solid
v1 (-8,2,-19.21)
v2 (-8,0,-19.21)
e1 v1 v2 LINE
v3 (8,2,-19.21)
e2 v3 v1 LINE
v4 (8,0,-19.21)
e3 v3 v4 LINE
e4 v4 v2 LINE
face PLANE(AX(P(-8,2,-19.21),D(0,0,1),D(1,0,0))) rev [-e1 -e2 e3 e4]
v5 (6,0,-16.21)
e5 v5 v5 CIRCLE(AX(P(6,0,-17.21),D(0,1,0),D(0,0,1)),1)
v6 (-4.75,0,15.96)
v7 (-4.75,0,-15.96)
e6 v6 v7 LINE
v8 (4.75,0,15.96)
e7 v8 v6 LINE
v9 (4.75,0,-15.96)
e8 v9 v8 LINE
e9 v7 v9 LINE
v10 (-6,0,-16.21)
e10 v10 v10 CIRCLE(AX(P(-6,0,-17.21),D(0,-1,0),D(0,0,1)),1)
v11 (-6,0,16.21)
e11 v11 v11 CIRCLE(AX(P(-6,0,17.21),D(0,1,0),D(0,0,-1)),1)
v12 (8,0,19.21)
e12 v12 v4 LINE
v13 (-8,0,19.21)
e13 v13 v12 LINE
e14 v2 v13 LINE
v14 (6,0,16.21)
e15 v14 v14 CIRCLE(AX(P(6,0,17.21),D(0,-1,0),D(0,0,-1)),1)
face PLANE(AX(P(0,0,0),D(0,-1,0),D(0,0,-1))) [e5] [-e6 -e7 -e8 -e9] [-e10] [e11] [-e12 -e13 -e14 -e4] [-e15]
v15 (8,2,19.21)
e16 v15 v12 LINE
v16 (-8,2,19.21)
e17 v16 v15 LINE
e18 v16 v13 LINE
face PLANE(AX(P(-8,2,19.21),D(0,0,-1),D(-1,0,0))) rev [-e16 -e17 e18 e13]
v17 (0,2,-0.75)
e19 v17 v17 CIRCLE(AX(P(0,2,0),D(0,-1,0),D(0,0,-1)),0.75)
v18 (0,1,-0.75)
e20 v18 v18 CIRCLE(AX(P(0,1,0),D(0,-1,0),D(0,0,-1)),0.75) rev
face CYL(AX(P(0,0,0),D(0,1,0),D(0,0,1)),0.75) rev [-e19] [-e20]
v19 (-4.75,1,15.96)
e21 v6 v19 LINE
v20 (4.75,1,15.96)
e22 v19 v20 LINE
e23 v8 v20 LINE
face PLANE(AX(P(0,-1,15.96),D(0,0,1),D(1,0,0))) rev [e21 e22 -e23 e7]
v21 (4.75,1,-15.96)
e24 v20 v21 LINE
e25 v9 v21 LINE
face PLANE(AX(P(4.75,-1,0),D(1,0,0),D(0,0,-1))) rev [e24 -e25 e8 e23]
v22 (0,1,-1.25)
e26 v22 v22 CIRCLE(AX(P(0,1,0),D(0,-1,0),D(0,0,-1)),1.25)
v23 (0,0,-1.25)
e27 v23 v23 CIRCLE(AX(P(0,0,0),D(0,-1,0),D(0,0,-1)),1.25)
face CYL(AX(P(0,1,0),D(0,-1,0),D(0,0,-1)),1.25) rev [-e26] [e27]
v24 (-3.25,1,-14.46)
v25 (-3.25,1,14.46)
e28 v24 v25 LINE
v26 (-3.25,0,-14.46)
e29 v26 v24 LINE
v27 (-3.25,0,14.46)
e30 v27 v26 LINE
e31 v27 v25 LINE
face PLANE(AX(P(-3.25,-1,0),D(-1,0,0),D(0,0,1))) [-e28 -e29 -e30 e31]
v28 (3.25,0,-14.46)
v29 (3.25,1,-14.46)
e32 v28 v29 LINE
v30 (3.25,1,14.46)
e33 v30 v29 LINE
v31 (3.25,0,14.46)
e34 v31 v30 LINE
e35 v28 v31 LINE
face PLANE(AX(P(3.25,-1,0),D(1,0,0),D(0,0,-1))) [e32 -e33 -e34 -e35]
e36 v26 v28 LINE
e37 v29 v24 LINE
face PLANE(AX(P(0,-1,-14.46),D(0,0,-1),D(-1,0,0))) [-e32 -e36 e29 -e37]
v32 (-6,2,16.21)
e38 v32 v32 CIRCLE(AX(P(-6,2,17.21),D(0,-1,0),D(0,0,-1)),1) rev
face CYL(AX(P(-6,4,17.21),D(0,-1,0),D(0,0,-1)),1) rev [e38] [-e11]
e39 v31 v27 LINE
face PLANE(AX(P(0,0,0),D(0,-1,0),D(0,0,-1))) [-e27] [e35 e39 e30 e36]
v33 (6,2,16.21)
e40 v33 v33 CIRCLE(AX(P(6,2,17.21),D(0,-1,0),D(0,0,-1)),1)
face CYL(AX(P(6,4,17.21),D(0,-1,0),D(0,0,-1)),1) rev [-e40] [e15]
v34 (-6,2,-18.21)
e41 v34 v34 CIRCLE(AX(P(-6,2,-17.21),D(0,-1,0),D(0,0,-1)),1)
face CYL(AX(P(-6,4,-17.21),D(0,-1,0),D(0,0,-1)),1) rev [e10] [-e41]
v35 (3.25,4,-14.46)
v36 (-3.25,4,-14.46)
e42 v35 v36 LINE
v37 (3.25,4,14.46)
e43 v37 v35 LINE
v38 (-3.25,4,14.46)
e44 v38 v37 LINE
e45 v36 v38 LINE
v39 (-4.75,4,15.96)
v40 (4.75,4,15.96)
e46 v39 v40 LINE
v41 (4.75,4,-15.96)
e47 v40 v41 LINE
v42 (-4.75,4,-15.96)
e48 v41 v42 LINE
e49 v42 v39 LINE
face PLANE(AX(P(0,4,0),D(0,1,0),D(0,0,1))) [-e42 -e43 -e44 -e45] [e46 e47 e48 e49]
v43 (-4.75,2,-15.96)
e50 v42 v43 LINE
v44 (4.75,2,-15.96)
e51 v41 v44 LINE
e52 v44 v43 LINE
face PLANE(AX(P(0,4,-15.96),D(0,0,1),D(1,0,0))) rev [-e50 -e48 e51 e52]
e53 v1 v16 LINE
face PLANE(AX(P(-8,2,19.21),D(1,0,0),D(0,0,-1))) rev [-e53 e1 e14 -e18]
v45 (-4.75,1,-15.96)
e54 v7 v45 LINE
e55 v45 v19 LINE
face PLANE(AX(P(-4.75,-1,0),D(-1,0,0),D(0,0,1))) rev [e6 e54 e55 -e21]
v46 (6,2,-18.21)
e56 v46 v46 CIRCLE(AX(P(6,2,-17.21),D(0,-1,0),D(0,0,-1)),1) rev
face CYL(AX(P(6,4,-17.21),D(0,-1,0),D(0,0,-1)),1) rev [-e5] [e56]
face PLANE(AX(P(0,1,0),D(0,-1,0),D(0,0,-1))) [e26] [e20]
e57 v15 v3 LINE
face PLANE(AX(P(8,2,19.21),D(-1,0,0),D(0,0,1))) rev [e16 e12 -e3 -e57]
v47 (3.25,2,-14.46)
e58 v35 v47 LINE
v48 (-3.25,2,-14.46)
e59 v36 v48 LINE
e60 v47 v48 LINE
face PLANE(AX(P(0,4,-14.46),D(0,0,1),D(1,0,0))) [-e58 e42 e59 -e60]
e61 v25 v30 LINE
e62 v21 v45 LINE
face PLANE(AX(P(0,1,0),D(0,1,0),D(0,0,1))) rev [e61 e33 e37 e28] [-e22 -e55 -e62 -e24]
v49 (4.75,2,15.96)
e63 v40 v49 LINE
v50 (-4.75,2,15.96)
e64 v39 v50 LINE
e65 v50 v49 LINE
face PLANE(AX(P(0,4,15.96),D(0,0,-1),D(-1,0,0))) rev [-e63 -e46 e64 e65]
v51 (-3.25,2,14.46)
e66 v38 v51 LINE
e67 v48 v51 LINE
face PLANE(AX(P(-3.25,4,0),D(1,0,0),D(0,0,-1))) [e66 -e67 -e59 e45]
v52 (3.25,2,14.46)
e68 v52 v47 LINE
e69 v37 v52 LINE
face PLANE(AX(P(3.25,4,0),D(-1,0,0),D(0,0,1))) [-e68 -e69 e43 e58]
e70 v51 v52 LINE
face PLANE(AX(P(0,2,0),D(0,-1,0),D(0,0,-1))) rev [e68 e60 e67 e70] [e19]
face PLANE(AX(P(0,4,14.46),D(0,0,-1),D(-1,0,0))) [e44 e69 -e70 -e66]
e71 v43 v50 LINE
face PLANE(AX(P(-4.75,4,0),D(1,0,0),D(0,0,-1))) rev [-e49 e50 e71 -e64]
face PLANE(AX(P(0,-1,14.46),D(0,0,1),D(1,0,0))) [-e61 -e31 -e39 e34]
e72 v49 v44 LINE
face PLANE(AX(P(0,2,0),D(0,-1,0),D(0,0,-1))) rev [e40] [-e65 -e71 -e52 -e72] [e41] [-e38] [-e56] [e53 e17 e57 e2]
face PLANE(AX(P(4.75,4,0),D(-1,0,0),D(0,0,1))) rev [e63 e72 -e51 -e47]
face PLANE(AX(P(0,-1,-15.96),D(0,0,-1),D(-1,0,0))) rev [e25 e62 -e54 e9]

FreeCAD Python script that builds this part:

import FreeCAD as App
import Part
import Sketcher
from FreeCAD import Vector

doc = App.newDocument("Part")
params = doc.addObject("Spreadsheet::Sheet", "Params")
for row, (alias, value) in enumerate([
    ("sketch1_width", "16 mm"),
    ("sketch1_height", "38.42 mm"),
    ("pad1_length", "2 mm"),
    ("sketch2_width", "9.5 mm"),
    ("sketch2_width2", "6.5 mm"),
    ("sketch2_height", "31.92 mm"),
    ("sketch2_height2", "28.92 mm"),
    ("pad2_length", "2 mm"),
    ("sketch3_diameter", "2 mm"),
    ("sketch4_diameter", "2 mm"),
    ("sketch5_width", "9.5 mm"),
    ("sketch5_width2", "6.5 mm"),
    ("sketch5_height", "31.92 mm"),
    ("sketch5_height2", "28.92 mm"),
    ("pocket3_length", "2 mm"),
    ("sketch6_diameter", "1.5 mm"),
    ("sketch7_diameter", "2.5 mm"),
    ("pocket5_length", "1 mm"),
], start=1):
    params.set(f"A{row}", alias)
    params.set(f"B{row}", "=" + value)
    params.setAlias(f"B{row}", alias)

body = doc.addObject("PartDesign::Body", "Body")

sketch1 = body.newObject("Sketcher::SketchObject", "Sketch")
sketch1.AttachmentSupport = (doc.getObject("XZ_Plane"), [""])
sketch1.MapMode = "FlatFace"
sketch1.addGeometry([
    Part.LineSegment(Vector(-8, -19, 0), Vector(-8, 19, 0)),
    Part.LineSegment(Vector(-8, 19, 0), Vector(8, 19, 0)),
    Part.LineSegment(Vector(8, 19, 0), Vector(8, -19, 0)),
    Part.LineSegment(Vector(8, -19, 0), Vector(-8, -19, 0)),
], False)
sketch1.addConstraint([
    Sketcher.Constraint("Coincident", 0, 2, 1, 1),
    Sketcher.Constraint("Coincident", 1, 2, 2, 1),
    Sketcher.Constraint("Coincident", 2, 2, 3, 1),
    Sketcher.Constraint("Coincident", 3, 2, 0, 1),
    Sketcher.Constraint("Vertical", 0),
    Sketcher.Constraint("Horizontal", 1),
    Sketcher.Constraint("Vertical", 2),
    Sketcher.Constraint("Horizontal", 3),
    Sketcher.Constraint("Symmetric", 0, 2, 2, 2, -1, 1),
    Sketcher.Constraint("DistanceX", 1, 1, 1, 2, 16.0),
    Sketcher.Constraint("DistanceY", 0, 1, 0, 2, 38.42),
])
sketch1.setExpression("Constraints[9]", "Params.sketch1_width")
sketch1.setExpression("Constraints[10]", "Params.sketch1_height")
pad1 = body.newObject("PartDesign::Pad", "Pad")
pad1.Profile = sketch1
pad1.setExpression("Length", "Params.pad1_length")
pad1.Reversed = True

sketch2 = body.newObject("Sketcher::SketchObject", "Sketch001")
sketch2.AttachmentSupport = (doc.getObject("XZ_Plane"), [""])
sketch2.MapMode = "FlatFace"
sketch2.AttachmentOffset = App.Placement(Vector(0, 0, -2), App.Rotation())
sketch2.addGeometry([
    Part.LineSegment(Vector(-5, -16, 0), Vector(-5, 16, 0)),
    Part.LineSegment(Vector(-5, 16, 0), Vector(5, 16, 0)),
    Part.LineSegment(Vector(5, 16, 0), Vector(5, -16, 0)),
    Part.LineSegment(Vector(5, -16, 0), Vector(-5, -16, 0)),
    Part.LineSegment(Vector(3, 14, 0), Vector(-3, 14, 0)),
    Part.LineSegment(Vector(-3, 14, 0), Vector(-3, -14, 0)),
    Part.LineSegment(Vector(-3, -14, 0), Vector(3, -14, 0)),
    Part.LineSegment(Vector(3, -14, 0), Vector(3, 14, 0)),
], False)
sketch2.addConstraint([
    Sketcher.Constraint("Coincident", 0, 2, 1, 1),
    Sketcher.Constraint("Coincident", 1, 2, 2, 1),
    Sketcher.Constraint("Coincident", 2, 2, 3, 1),
    Sketcher.Constraint("Coincident", 3, 2, 0, 1),
    Sketcher.Constraint("Coincident", 4, 2, 5, 1),
    Sketcher.Constraint("Coincident", 5, 2, 6, 1),
    Sketcher.Constraint("Coincident", 6, 2, 7, 1),
    Sketcher.Constraint("Coincident", 7, 2, 4, 1),
    Sketcher.Constraint("Vertical", 0),
    Sketcher.Constraint("Horizontal", 1),
    Sketcher.Constraint("Vertical", 2),
    Sketcher.Constraint("Horizontal", 3),
    Sketcher.Constraint("Horizontal", 4),
    Sketcher.Constraint("Vertical", 5),
    Sketcher.Constraint("Horizontal", 6),
    Sketcher.Constraint("Vertical", 7),
    Sketcher.Constraint("Symmetric", 0, 2, 2, 2, -1, 1),
    Sketcher.Constraint("Symmetric", 4, 2, 6, 2, -1, 1),
    Sketcher.Constraint("DistanceX", 1, 1, 1, 2, 9.5),
    Sketcher.Constraint("DistanceX", 4, 2, 4, 1, 6.5),
    Sketcher.Constraint("DistanceY", 0, 1, 0, 2, 31.92),
    Sketcher.Constraint("DistanceY", 5, 2, 5, 1, 28.92),
])
sketch2.setExpression("Constraints[18]", "Params.sketch2_width")
sketch2.setExpression("Constraints[19]", "Params.sketch2_width2")
sketch2.setExpression("Constraints[20]", "Params.sketch2_height")
sketch2.setExpression("Constraints[21]", "Params.sketch2_height2")
pad2 = body.newObject("PartDesign::Pad", "Pad001")
pad2.Profile = sketch2
pad2.setExpression("Length", "Params.pad2_length")
pad2.Reversed = True

sketch3 = body.newObject("Sketcher::SketchObject", "Sketch002")
sketch3.AttachmentSupport = (doc.getObject("XZ_Plane"), [""])
sketch3.MapMode = "FlatFace"
sketch3.addGeometry(Part.Circle(Vector(6, 17.2, 0), Vector(0, 0, 1), 1), False)
sketch3.addConstraint([
    Sketcher.Constraint("Diameter", 0, 2.0),
    Sketcher.Constraint("DistanceX", -1, 1, 0, 3, 6.0),
    Sketcher.Constraint("DistanceY", -1, 1, 0, 3, 17.21),
])
sketch3.setExpression("Constraints[0]", "Params.sketch3_diameter")
pocket1 = body.newObject("PartDesign::Pocket", "Pocket")
pocket1.Profile = sketch3
pocket1.Type = "ThroughAll"
doc.recompute()

mirrored = body.newObject("PartDesign::Mirrored", "Mirrored")
mirrored.Originals = [pocket1]
mirrored.MirrorPlane = (doc.getObject("XY_Plane"), [""])
body.Tip = mirrored
doc.recompute()

mirrored2 = body.newObject("PartDesign::Mirrored", "Mirrored001")
mirrored2.Originals = [pocket1]
mirrored2.MirrorPlane = (doc.getObject("YZ_Plane"), [""])
body.Tip = mirrored2

sketch4 = body.newObject("Sketcher::SketchObject", "Sketch003")
sketch4.AttachmentSupport = (doc.getObject("XZ_Plane"), [""])
sketch4.MapMode = "FlatFace"
sketch4.addGeometry(Part.Circle(Vector(-6, -17.2, 0), Vector(0, 0, 1), 1), False)
sketch4.addConstraint([
    Sketcher.Constraint("Diameter", 0, 2.0),
    Sketcher.Constraint("DistanceX", 0, 3, -1, 1, 6.0),
    Sketcher.Constraint("DistanceY", 0, 3, -1, 1, 17.21),
])
sketch4.setExpression("Constraints[0]", "Params.sketch4_diameter")
pocket2 = body.newObject("PartDesign::Pocket", "Pocket001")
pocket2.Profile = sketch4
pocket2.Type = "ThroughAll"

sketch5 = body.newObject("Sketcher::SketchObject", "Sketch004")
sketch5.AttachmentSupport = (doc.getObject("XZ_Plane"), [""])
sketch5.MapMode = "FlatFace"
sketch5.AttachmentOffset = App.Placement(Vector(0, 0, -1), App.Rotation())
sketch5.addGeometry([
    Part.LineSegment(Vector(-5, -16, 0), Vector(-5, 16, 0)),
    Part.LineSegment(Vector(-5, 16, 0), Vector(5, 16, 0)),
    Part.LineSegment(Vector(5, 16, 0), Vector(5, -16, 0)),
    Part.LineSegment(Vector(5, -16, 0), Vector(-5, -16, 0)),
    Part.LineSegment(Vector(3, 14, 0), Vector(-3, 14, 0)),
    Part.LineSegment(Vector(-3, 14, 0), Vector(-3, -14, 0)),
    Part.LineSegment(Vector(-3, -14, 0), Vector(3, -14, 0)),
    Part.LineSegment(Vector(3, -14, 0), Vector(3, 14, 0)),
], False)
sketch5.addConstraint([
    Sketcher.Constraint("Coincident", 0, 2, 1, 1),
    Sketcher.Constraint("Coincident", 1, 2, 2, 1),
    Sketcher.Constraint("Coincident", 2, 2, 3, 1),
    Sketcher.Constraint("Coincident", 3, 2, 0, 1),
    Sketcher.Constraint("Coincident", 4, 2, 5, 1),
    Sketcher.Constraint("Coincident", 5, 2, 6, 1),
    Sketcher.Constraint("Coincident", 6, 2, 7, 1),
    Sketcher.Constraint("Coincident", 7, 2, 4, 1),
    Sketcher.Constraint("Vertical", 0),
    Sketcher.Constraint("Horizontal", 1),
    Sketcher.Constraint("Vertical", 2),
    Sketcher.Constraint("Horizontal", 3),
    Sketcher.Constraint("Horizontal", 4),
    Sketcher.Constraint("Vertical", 5),
    Sketcher.Constraint("Horizontal", 6),
    Sketcher.Constraint("Vertical", 7),
    Sketcher.Constraint("Symmetric", 0, 2, 2, 2, -1, 1),
    Sketcher.Constraint("Symmetric", 4, 2, 6, 2, -1, 1),
    Sketcher.Constraint("DistanceX", 1, 1, 1, 2, 9.5),
    Sketcher.Constraint("DistanceX", 4, 2, 4, 1, 6.5),
    Sketcher.Constraint("DistanceY", 0, 1, 0, 2, 31.92),
    Sketcher.Constraint("DistanceY", 5, 2, 5, 1, 28.92),
])
sketch5.setExpression("Constraints[18]", "Params.sketch5_width")
sketch5.setExpression("Constraints[19]", "Params.sketch5_width2")
sketch5.setExpression("Constraints[20]", "Params.sketch5_height")
sketch5.setExpression("Constraints[21]", "Params.sketch5_height2")
pocket3 = body.newObject("PartDesign::Pocket", "Pocket002")
pocket3.Profile = sketch5
pocket3.setExpression("Length", "Params.pocket3_length")
pocket3.Reversed = True

sketch6 = body.newObject("Sketcher::SketchObject", "Sketch005")
sketch6.AttachmentSupport = (doc.getObject("XZ_Plane"), [""])
sketch6.MapMode = "FlatFace"
sketch6.AttachmentOffset = App.Placement(Vector(0, 0, -2), App.Rotation())
sketch6.addGeometry(Part.Circle(Vector(0, 0, 0), Vector(0, 0, 1), 0.8), False)
sketch6.addConstraint([
    Sketcher.Constraint("Coincident", 0, 3, -1, 1),
    Sketcher.Constraint("Diameter", 0, 1.5),
])
sketch6.setExpression("Constraints[1]", "Params.sketch6_diameter")
pocket4 = body.newObject("PartDesign::Pocket", "Pocket003")
pocket4.Profile = sketch6
pocket4.Type = "ThroughAll"
pocket4.Midplane = True

sketch7 = body.newObject("Sketcher::SketchObject", "Sketch006")
sketch7.AttachmentSupport = (doc.getObject("XZ_Plane"), [""])
sketch7.MapMode = "FlatFace"
sketch7.addGeometry(Part.Circle(Vector(0, 0, 0), Vector(0, 0, 1), 1.2), False)
sketch7.addConstraint([
    Sketcher.Constraint("Coincident", 0, 3, -1, 1),
    Sketcher.Constraint("Diameter", 0, 2.5),
])
sketch7.setExpression("Constraints[1]", "Params.sketch7_diameter")
pocket5 = body.newObject("PartDesign::Pocket", "Pocket004")
pocket5.Profile = sketch7
pocket5.setExpression("Length", "Params.pocket5_length")

doc.recompute()
